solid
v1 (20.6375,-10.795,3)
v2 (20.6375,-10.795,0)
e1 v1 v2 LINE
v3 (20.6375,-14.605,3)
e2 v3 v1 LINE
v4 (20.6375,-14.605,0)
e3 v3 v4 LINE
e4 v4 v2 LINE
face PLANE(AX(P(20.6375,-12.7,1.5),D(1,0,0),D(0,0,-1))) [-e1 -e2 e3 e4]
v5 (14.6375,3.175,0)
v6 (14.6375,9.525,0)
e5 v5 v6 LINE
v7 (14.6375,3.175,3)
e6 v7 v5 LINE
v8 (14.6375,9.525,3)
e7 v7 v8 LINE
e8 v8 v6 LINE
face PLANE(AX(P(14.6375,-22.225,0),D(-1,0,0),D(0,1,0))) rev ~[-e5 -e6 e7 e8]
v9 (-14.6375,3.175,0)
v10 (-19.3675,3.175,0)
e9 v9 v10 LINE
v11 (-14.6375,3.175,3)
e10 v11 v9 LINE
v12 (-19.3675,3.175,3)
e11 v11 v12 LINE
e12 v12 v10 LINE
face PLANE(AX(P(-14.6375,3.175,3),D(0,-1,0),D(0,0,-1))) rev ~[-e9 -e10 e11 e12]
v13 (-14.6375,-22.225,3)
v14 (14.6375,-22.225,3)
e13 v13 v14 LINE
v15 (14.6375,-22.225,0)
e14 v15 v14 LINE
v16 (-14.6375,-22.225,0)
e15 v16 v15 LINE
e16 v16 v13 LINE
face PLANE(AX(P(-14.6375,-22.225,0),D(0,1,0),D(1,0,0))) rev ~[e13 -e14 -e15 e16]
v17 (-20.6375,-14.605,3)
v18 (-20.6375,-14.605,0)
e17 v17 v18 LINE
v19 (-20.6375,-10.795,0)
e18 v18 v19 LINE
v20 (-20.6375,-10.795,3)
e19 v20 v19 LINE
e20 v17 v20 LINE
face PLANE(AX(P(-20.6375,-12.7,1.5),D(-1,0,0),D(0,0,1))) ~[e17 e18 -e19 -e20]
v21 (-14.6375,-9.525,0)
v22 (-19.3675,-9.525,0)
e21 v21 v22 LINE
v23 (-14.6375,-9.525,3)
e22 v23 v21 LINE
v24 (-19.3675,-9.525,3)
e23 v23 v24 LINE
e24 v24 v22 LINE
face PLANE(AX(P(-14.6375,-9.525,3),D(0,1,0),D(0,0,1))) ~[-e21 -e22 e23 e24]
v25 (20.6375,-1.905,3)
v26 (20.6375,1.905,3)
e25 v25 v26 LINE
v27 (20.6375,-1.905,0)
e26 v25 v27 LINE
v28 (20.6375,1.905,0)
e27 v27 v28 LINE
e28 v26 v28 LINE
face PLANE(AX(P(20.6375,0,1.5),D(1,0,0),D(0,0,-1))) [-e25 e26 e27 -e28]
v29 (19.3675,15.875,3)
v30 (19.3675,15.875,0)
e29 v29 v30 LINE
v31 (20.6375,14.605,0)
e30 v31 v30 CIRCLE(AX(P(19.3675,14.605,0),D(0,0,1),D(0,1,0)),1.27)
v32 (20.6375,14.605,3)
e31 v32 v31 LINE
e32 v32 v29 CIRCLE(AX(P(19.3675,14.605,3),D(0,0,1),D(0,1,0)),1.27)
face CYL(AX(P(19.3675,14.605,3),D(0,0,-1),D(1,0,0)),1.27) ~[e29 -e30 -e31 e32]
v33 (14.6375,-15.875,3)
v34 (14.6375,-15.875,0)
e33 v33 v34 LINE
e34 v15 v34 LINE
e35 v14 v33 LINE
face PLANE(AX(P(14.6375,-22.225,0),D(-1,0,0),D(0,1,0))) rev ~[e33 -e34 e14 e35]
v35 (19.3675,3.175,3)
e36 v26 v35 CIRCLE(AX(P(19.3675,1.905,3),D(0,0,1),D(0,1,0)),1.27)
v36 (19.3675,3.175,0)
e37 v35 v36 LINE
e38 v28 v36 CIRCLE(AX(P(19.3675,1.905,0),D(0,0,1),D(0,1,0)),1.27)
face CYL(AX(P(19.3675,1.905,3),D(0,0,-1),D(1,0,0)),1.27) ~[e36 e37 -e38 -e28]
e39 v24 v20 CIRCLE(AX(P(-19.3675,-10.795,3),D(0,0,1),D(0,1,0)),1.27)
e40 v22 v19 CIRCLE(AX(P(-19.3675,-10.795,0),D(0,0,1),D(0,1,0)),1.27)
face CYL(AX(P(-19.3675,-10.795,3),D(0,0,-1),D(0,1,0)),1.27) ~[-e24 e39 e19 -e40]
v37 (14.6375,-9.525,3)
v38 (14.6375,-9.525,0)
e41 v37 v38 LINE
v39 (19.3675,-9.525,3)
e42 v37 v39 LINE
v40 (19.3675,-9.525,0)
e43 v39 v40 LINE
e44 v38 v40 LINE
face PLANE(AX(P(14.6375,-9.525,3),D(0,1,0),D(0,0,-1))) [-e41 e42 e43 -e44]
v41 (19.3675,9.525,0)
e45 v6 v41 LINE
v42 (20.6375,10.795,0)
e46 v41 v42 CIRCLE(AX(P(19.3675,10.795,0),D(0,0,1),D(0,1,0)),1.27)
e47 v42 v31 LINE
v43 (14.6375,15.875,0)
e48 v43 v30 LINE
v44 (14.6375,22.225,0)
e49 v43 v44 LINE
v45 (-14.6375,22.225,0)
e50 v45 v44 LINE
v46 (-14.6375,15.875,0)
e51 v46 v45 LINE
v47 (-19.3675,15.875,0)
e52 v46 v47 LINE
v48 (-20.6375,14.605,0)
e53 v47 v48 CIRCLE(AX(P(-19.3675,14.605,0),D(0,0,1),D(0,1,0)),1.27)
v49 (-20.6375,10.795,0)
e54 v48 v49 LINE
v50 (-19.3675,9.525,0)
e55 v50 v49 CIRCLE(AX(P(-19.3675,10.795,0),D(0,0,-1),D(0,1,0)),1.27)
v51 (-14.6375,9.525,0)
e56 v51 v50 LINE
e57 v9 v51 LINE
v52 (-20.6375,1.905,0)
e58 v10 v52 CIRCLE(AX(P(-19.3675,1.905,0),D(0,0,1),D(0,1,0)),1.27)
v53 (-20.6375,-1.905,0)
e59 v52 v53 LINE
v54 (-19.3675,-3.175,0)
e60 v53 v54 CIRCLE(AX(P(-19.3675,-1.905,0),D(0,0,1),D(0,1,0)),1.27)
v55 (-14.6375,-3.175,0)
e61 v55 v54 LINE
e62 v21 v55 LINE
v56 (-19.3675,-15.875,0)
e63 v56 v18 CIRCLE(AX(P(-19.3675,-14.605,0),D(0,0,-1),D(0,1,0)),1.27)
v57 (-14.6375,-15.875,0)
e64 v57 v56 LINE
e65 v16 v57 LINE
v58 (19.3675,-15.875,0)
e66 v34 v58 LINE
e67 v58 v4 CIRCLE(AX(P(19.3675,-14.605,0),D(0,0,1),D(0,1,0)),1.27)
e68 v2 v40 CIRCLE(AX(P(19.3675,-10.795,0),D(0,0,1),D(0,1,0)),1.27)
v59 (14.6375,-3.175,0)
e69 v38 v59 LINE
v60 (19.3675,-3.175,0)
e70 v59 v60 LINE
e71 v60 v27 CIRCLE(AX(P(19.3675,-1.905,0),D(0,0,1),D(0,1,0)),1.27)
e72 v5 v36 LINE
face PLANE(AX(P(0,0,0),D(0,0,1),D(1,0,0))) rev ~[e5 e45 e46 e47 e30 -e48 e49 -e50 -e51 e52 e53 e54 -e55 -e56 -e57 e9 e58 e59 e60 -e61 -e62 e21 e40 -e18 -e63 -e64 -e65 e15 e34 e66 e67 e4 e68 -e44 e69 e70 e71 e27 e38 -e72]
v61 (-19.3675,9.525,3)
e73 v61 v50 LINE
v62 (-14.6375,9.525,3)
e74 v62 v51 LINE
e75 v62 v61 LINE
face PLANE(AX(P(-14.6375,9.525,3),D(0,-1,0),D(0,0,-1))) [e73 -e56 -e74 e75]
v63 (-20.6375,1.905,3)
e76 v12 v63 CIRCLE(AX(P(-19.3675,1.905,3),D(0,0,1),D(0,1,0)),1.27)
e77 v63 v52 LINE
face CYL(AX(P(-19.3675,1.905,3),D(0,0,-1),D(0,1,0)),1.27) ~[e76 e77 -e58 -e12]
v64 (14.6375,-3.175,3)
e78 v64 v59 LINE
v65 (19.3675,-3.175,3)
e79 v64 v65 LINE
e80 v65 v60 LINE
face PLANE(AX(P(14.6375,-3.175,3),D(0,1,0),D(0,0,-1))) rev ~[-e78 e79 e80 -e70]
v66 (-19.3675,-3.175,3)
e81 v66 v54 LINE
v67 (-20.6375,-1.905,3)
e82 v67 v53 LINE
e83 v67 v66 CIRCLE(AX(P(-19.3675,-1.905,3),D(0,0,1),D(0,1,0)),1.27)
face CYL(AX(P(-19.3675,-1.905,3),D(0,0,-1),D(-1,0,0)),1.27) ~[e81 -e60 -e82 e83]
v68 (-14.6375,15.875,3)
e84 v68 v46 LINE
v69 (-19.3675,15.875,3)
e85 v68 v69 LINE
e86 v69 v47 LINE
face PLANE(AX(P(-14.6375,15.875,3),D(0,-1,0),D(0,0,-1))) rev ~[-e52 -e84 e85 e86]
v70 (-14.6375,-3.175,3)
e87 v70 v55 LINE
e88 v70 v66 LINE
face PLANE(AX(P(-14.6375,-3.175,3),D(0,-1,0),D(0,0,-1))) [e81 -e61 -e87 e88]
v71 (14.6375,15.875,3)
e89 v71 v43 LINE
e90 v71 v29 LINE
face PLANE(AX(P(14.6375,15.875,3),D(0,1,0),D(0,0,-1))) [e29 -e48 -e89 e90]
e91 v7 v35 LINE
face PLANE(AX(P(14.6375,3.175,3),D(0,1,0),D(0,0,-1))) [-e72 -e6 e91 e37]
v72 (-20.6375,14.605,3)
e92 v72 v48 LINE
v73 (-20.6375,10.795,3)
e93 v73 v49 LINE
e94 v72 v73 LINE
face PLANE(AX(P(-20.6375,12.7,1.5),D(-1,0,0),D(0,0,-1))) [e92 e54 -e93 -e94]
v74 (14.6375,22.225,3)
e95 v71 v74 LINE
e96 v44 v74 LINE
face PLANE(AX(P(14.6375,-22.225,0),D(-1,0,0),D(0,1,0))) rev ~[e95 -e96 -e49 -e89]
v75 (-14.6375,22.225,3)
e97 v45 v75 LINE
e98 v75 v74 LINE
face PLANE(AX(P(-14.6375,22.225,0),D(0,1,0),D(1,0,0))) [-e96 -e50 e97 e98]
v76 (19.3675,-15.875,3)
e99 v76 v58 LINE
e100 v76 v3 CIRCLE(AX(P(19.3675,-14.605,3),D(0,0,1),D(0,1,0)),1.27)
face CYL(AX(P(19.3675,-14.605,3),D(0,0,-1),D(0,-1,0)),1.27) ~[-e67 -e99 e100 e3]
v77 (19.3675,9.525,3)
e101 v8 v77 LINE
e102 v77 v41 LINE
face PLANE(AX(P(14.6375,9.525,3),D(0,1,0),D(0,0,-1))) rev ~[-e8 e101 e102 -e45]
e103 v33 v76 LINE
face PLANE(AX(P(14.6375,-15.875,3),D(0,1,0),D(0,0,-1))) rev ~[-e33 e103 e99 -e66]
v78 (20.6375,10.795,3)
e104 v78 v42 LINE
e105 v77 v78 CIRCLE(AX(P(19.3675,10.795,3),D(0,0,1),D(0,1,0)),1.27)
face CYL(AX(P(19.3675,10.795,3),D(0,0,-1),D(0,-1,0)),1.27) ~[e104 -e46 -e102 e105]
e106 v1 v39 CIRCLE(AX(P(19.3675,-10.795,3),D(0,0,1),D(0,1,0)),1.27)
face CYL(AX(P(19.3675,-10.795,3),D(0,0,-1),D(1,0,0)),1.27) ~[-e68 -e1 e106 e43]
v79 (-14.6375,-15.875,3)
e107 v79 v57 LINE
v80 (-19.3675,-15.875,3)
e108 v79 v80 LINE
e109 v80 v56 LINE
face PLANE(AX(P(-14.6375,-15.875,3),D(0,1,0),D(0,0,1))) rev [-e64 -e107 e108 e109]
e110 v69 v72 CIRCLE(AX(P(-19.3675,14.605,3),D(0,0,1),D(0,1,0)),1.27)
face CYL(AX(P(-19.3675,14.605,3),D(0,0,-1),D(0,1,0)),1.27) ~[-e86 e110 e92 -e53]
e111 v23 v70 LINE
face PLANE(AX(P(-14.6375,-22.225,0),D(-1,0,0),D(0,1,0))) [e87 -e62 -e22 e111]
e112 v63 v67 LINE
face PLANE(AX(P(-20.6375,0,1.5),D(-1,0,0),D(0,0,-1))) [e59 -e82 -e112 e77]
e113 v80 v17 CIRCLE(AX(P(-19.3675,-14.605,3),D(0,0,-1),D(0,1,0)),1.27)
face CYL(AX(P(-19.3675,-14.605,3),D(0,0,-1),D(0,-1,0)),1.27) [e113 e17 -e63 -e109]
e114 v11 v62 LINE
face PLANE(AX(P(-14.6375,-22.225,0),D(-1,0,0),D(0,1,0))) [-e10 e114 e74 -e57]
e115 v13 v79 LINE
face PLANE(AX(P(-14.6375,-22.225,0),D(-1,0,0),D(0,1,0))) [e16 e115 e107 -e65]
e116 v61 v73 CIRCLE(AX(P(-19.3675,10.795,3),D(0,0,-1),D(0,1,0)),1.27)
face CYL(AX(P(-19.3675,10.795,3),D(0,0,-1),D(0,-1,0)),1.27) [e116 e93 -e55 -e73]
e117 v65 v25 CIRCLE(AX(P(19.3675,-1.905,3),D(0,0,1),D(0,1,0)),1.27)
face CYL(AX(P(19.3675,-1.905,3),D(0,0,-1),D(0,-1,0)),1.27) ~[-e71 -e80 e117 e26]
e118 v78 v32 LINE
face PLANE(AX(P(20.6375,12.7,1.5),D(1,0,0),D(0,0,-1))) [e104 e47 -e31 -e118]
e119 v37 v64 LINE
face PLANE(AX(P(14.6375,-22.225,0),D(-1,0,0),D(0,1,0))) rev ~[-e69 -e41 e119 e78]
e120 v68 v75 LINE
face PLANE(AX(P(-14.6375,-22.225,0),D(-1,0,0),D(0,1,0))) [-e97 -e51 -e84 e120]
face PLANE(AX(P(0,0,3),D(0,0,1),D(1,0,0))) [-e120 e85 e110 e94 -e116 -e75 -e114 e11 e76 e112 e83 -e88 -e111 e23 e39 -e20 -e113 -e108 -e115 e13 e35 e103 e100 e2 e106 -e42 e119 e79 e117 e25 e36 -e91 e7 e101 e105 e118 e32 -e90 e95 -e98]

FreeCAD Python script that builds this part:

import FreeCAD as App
import Part
import Sketcher
from FreeCAD import Vector
Q = App.Units.Quantity


def edges_at(feature, points):
    """Names of the edges that pass closest to the given points."""
    edges = feature.Shape.Edges
    near = lambda p: min(range(len(edges)), key=lambda i: edges[i].distToShape(Part.Vertex(*p))[0])
    return sorted({f"Edge{near(p) + 1}" for p in points})

doc = App.newDocument("Part")
params = doc.addObject("Spreadsheet::Sheet", "Params")
for row, (alias, value) in enumerate([
    ("sketch1_height", "1.75 in"),
    ("pad1_length", "3 mm"),
    ("sketch2_width", "0.25 in"),
    ("pad2_length", "6 mm"),
    ("linearpattern_pitch", "0.5 in"),
    ("sketch3_width", "0.25 in"),
    ("pad3_length", "6 mm"),
    ("sketch4_width", "0.25 in"),
    ("pad4_length", "6 mm"),
    ("fillet_radius", "0.05 in"),
], start=1):
    params.set(f"A{row}", alias)
    params.set(f"B{row}", "=" + value)
    params.setAlias(f"B{row}", alias)

body = doc.addObject("PartDesign::Body", "Body")

sketch1 = body.newObject("Sketcher::SketchObject", "Sketch")
sketch1.AttachmentSupport = (doc.getObject("XY_Plane"), [""])
sketch1.MapMode = "FlatFace"
sketch1.addGeometry([
    Part.LineSegment(Vector(-14.6375, 22.225, 0), Vector(-14.6375, -22.225, 0)),
    Part.LineSegment(Vector(-14.6375, -22.225, 0), Vector(14.6375, -22.225, 0)),
    Part.LineSegment(Vector(14.6375, -22.225, 0), Vector(14.6375, 22.225, 0)),
    Part.LineSegment(Vector(14.6375, 22.225, 0), Vector(-14.6375, 22.225, 0)),
], False)
sketch1.addConstraint([
    Sketcher.Constraint("Coincident", 0, 2, 1, 1),
    Sketcher.Constraint("Coincident", 1, 2, 2, 1),
    Sketcher.Constraint("Coincident", 2, 2, 3, 1),
    Sketcher.Constraint("Coincident", 3, 2, 0, 1),
    Sketcher.Constraint("Vertical", 0),
    Sketcher.Constraint("Horizontal", 1),
    Sketcher.Constraint("Vertical", 2),
    Sketcher.Constraint("Horizontal", 3),
    Sketcher.Constraint("Symmetric", 0, 2, 2, 2, -1, 1),
    Sketcher.Constraint("DistanceY", 0, 2, 0, 1, Q("1.75 in")),
    Sketcher.Constraint("DistanceX", 1, 1, 1, 2, Q("29.275 mm")),
])
sketch1.setExpression("Constraints[9]", "Params.sketch1_height")
pad1 = body.newObject("PartDesign::Pad", "Pad")
pad1.Profile = sketch1
pad1.setExpression("Length", "Params.pad1_length")

sketch2 = body.newObject("Sketcher::SketchObject", "Sketch001")
sketch2.AttachmentSupport = (doc.getObject("YZ_Plane"), [""])
sketch2.MapMode = "FlatFace"
sketch2.AttachmentOffset = App.Placement(Vector(0, 0, 14.6375), App.Rotation())
sketch2.addGeometry([
    Part.LineSegment(Vector(-9.525, 3, 0), Vector(-15.875, 3, 0)),
    Part.LineSegment(Vector(-15.875, 3, 0), Vector(-15.875, 0, 0)),
    Part.LineSegment(Vector(-15.875, 0, 0), Vector(-9.525, 0, 0)),
    Part.LineSegment(Vector(-9.525, 0, 0), Vector(-9.525, 3, 0)),
], False)
sketch2.addConstraint([
    Sketcher.Constraint("Coincident", 0, 2, 1, 1),
    Sketcher.Constraint("Coincident", 1, 2, 2, 1),
    Sketcher.Constraint("Coincident", 2, 2, 3, 1),
    Sketcher.Constraint("Coincident", 3, 2, 0, 1),
    Sketcher.Constraint("Horizontal", 0),
    Sketcher.Constraint("Vertical", 1),
    Sketcher.Constraint("Horizontal", 2),
    Sketcher.Constraint("Vertical", 3),
    Sketcher.Constraint("PointOnObject", 1, 2, -1),
    Sketcher.Constraint("DistanceX", 0, 2, 0, 1, Q("0.25 in")),
    Sketcher.Constraint("DistanceX", 0, 2, -1, 1, Q("0.625 in")),
    Sketcher.Constraint("DistanceY", 1, 2, 1, 1, Q("3 mm")),
])
sketch2.setExpression("Constraints[9]", "Params.sketch2_width")
pad2 = body.newObject("PartDesign::Pad", "Pad001")
pad2.Profile = sketch2
pad2.setExpression("Length", "Params.pad2_length")
doc.recompute()

linearpattern = body.newObject("PartDesign::LinearPattern", "LinearPattern")
linearpattern.Originals = [pad2]
linearpattern.Direction = (doc.getObject("Y_Axis"), [""])
linearpattern.Mode = "offset"
linearpattern.setExpression("Offset", "Params.linearpattern_pitch")
linearpattern.Occurrences = 3
body.Tip = linearpattern
doc.recompute()

mirrored = body.newObject("PartDesign::Mirrored", "Mirrored")
mirrored.Originals = [pad2]
mirrored.MirrorPlane = (doc.getObject("YZ_Plane"), [""])
body.Tip = mirrored

sketch3 = body.newObject("Sketcher::SketchObject", "Sketch002")
sketch3.AttachmentSupport = (doc.getObject("YZ_Plane"), [""])
sketch3.MapMode = "FlatFace"
sketch3.AttachmentOffset = App.Placement(Vector(0, 0, -14.6375), App.Rotation())
sketch3.addGeometry([
    Part.LineSegment(Vector(-3.175, 3, 0), Vector(3.175, 3, 0)),
    Part.LineSegment(Vector(3.175, 3, 0), Vector(3.175, 0, 0)),
    Part.LineSegment(Vector(3.175, 0, 0), Vector(-3.175, 0, 0)),
    Part.LineSegment(Vector(-3.175, 0, 0), Vector(-3.175, 3, 0)),
], False)
sketch3.addConstraint([
    Sketcher.Constraint("Coincident", 0, 2, 1, 1),
    Sketcher.Constraint("Coincident", 1, 2, 2, 1),
    Sketcher.Constraint("Coincident", 2, 2, 3, 1),
    Sketcher.Constraint("Coincident", 3, 2, 0, 1),
    Sketcher.Constraint("Horizontal", 0),
    Sketcher.Constraint("Vertical", 1),
    Sketcher.Constraint("Horizontal", 2),
    Sketcher.Constraint("Vertical", 3),
    Sketcher.Constraint("Symmetric", 1, 2, 2, 2, -1, 1),
    Sketcher.Constraint("DistanceX", 0, 1, 0, 2, Q("0.25 in")),
    Sketcher.Constraint("DistanceY", 1, 2, 1, 1, Q("3 mm")),
])
sketch3.setExpression("Constraints[9]", "Params.sketch3_width")
pad3 = body.newObject("PartDesign::Pad", "Pad002")
pad3.Profile = sketch3
pad3.setExpression("Length", "Params.pad3_length")
pad3.Reversed = True

sketch4 = body.newObject("Sketcher::SketchObject", "Sketch003")
sketch4.AttachmentSupport = (doc.getObject("YZ_Plane"), [""])
sketch4.MapMode = "FlatFace"
sketch4.AttachmentOffset = App.Placement(Vector(0, 0, -14.6375), App.Rotation())
sketch4.addGeometry([
    Part.LineSegment(Vector(9.525, 3, 0), Vector(15.875, 3, 0)),
    Part.LineSegment(Vector(15.875, 3, 0), Vector(15.875, 0, 0)),
    Part.LineSegment(Vector(15.875, 0, 0), Vector(9.525, 0, 0)),
    Part.LineSegment(Vector(9.525, 0, 0), Vector(9.525, 3, 0)),
], False)
sketch4.addConstraint([
    Sketcher.Constraint("Coincident", 0, 2, 1, 1),
    Sketcher.Constraint("Coincident", 1, 2, 2, 1),
    Sketcher.Constraint("Coincident", 2, 2, 3, 1),
    Sketcher.Constraint("Coincident", 3, 2, 0, 1),
    Sketcher.Constraint("Horizontal", 0),
    Sketcher.Constraint("Vertical", 1),
    Sketcher.Constraint("Horizontal", 2),
    Sketcher.Constraint("Vertical", 3),
    Sketcher.Constraint("PointOnObject", 1, 2, -1),
    Sketcher.Constraint("DistanceX", 0, 1, 0, 2, Q("0.25 in")),
    Sketcher.Constraint("DistanceX", -1, 1, 0, 2, Q("0.625 in")),
    Sketcher.Constraint("DistanceY", 1, 2, 1, 1, Q("3 mm")),
])
sketch4.setExpression("Constraints[9]", "Params.sketch4_width")
pad4 = body.newObject("PartDesign::Pad", "Pad003")
pad4.Profile = sketch4
pad4.setExpression("Length", "Params.pad4_length")
pad4.Reversed = True
doc.recompute()

fillet = body.newObject("PartDesign::Fillet", "Fillet")
fillet.Base = (pad4, edges_at(pad4, [
    (20.638, -15.875, 1.5),
    (20.638, -9.525, 1.5),
    (20.638, -3.175, 1.5),
    (20.638, 3.175, 1.5),
    (20.638, 9.525, 1.5),
    (20.638, 15.875, 1.5),
    (-20.638, -9.525, 1.5),
    (-20.638, -15.875, 1.5),
    (-20.638, 3.175, 1.5),
    (-20.638, -3.175, 1.5),
    (-20.638, 15.875, 1.5),
    (-20.638, 9.525, 1.5),
]))
fillet.setExpression("Radius", "Params.fillet_radius")

doc.recompute()
